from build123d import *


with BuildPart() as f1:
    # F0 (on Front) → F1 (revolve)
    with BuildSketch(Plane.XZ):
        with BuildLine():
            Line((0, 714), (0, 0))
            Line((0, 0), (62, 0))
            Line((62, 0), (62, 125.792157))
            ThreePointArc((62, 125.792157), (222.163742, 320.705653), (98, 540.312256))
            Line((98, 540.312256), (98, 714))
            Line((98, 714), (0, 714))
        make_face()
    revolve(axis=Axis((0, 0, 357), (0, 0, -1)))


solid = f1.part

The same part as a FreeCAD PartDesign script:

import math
import FreeCAD as App
import Part
import Sketcher

doc = App.newDocument("Part")
body = doc.addObject("PartDesign::Body", "Body")

# Sketch on XZ plane
sketch1 = body.newObject("Sketcher::SketchObject", "Sketch")
sketch1.AttachmentSupport = (doc.getObject("XZ_Plane"), [""])
sketch1.MapMode = "FlatFace"
sketch1.addGeometry([
    Part.LineSegment(App.Vector(0, 714, 0), App.Vector(0, 0, 0)),  # 0
    Part.LineSegment(App.Vector(0, 0, 0), App.Vector(62, 0, 0)),  # 1
    Part.LineSegment(App.Vector(62, 0, 0), App.Vector(62, 126, 0)),  # 2
    Part.ArcOfCircle(Part.Circle(App.Vector(0, 340, 0), App.Vector(0, 0, 1), 223), math.radians(-74), math.radians(64)),  # 3
    Part.LineSegment(App.Vector(98, 540, 0), App.Vector(98, 714, 0)),  # 4
    Part.LineSegment(App.Vector(98, 714, 0), App.Vector(0, 714, 0)),  # 5
], False)
sketch1.addConstraint([
    Sketcher.Constraint("Coincident", 0, 2, 1, 1),
    Sketcher.Constraint("Coincident", 1, 2, 2, 1),
    Sketcher.Constraint("Coincident", 2, 2, 3, 1),
    Sketcher.Constraint("Coincident", 3, 2, 4, 1),
    Sketcher.Constraint("Coincident", 4, 2, 5, 1),
    Sketcher.Constraint("Coincident", 5, 2, 0, 1),
    Sketcher.Constraint("Vertical", 0),
    Sketcher.Constraint("Horizontal", 1),
    Sketcher.Constraint("Vertical", 2),
    Sketcher.Constraint("Vertical", 4),
    Sketcher.Constraint("Horizontal", 5),
    Sketcher.Constraint("Coincident", 0, 2, -1, 1),
    Sketcher.Constraint("PointOnObject", 3, 3, -2),
    Sketcher.Constraint("Radius", 3, 223.0),
    Sketcher.Constraint("DistanceX", 1, 1, 1, 2, 62.0),
    Sketcher.Constraint("DistanceX", 5, 2, 5, 1, 98.0),
    Sketcher.Constraint("DistanceY", 0, 2, 0, 1, 714.0),
    Sketcher.Constraint("DistanceY", -1, 1, 3, 3, 340.0),
])
revolution = body.newObject("PartDesign::Revolution", "Revolution")
revolution.Profile = sketch1
revolution.ReferenceAxis = (sketch1, ["V_Axis"])
revolution.Angle = 360

doc.recompute()
